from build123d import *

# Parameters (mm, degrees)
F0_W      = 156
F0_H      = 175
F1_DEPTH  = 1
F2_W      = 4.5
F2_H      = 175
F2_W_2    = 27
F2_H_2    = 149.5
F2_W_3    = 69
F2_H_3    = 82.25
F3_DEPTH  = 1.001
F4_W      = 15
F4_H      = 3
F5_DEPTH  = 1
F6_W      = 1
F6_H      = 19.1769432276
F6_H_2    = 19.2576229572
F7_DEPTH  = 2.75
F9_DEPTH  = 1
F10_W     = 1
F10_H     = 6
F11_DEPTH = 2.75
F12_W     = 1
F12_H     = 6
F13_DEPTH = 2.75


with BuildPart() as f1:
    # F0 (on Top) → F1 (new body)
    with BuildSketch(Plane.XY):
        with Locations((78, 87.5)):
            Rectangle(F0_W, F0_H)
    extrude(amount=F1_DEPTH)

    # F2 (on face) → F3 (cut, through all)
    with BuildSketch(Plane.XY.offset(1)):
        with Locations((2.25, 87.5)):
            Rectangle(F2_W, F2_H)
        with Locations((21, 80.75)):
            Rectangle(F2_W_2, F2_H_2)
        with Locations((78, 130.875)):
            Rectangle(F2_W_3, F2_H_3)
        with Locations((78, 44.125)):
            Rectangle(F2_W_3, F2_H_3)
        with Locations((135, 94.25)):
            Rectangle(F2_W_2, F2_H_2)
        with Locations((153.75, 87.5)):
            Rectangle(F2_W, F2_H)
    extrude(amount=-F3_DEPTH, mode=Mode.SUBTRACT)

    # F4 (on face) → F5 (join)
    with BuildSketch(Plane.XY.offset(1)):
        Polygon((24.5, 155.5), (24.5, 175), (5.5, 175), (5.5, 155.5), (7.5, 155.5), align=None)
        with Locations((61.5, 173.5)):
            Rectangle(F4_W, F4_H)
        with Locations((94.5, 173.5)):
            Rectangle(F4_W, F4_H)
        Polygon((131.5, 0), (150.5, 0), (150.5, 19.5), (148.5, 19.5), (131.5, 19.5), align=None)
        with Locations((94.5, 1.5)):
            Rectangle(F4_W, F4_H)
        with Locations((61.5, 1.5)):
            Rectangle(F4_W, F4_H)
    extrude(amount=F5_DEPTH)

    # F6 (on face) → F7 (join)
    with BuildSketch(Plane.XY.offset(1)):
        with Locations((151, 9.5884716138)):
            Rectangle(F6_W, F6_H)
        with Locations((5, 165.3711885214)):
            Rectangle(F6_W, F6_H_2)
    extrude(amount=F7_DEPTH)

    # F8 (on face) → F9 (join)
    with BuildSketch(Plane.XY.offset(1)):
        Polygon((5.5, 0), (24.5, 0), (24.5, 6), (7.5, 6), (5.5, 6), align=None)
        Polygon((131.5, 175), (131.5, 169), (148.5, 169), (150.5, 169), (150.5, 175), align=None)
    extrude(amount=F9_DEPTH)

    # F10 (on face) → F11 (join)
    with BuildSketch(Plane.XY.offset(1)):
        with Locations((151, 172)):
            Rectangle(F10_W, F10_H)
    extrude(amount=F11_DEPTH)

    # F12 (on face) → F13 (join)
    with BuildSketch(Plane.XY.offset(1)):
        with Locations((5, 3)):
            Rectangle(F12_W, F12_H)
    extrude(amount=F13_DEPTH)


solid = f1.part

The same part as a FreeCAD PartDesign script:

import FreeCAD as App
import Part
import Sketcher


def add_polygon(sketch, points):
    """Adds a closed chain of lines whose ends are joined by coincident constraints."""
    first, n = sketch.GeometryCount, len(points)
    for a, b in zip(points, points[1:] + points[:1]):
        sketch.addGeometry(Part.LineSegment(App.Vector(*a, 0), App.Vector(*b, 0)), False)
    for i in range(n):
        sketch.addConstraint(Sketcher.Constraint("Coincident", first + i, 2, first + (i + 1) % n, 1))

doc = App.newDocument("Part")
body = doc.addObject("PartDesign::Body", "Body")

# Sketch on XY plane
sketch1 = body.newObject("Sketcher::SketchObject", "Sketch")
sketch1.AttachmentSupport = (doc.getObject("XY_Plane"), [""])
sketch1.MapMode = "FlatFace"
add_polygon(sketch1, [(0, 175), (0, 0), (156, 0), (156, 175)])  # lines 0-3
sketch1.addConstraint([
    Sketcher.Constraint("Vertical", 0),
    Sketcher.Constraint("Horizontal", 1),
    Sketcher.Constraint("Vertical", 2),
    Sketcher.Constraint("Horizontal", 3),
    Sketcher.Constraint("Coincident", 0, 2, -1, 1),
    Sketcher.Constraint("DistanceX", 1, 1, 1, 2, 156.0),
    Sketcher.Constraint("DistanceY", 0, 2, 0, 1, 175.0),
])
pad1 = body.newObject("PartDesign::Pad", "Pad")
pad1.Profile = sketch1
pad1.Length = 1

# Sketch on XY plane
sketch2 = body.newObject("Sketcher::SketchObject", "Sketch001")
sketch2.AttachmentSupport = (doc.getObject("XY_Plane"), [""])
sketch2.MapMode = "FlatFace"
sketch2.AttachmentOffset = App.Placement(App.Vector(0, 0, 1), App.Rotation())
add_polygon(sketch2, [(0, 175), (0, 0), (4.5, 0), (4.5, 175)])  # lines 0-3
add_polygon(sketch2, [(7.5, 155.5), (7.5, 6), (34.5, 6), (34.5, 155.5)])  # lines 4-7
add_polygon(sketch2, [(43.5, 172), (43.5, 89.8), (112.5, 89.8), (112.5, 172)])  # lines 8-11
add_polygon(sketch2, [(43.5, 85.2), (43.5, 3), (112.5, 3), (112.5, 85.2)])  # lines 12-15
add_polygon(sketch2, [(121.5, 169), (121.5, 19.5), (148.5, 19.5), (148.5, 169)])  # lines 16-19
add_polygon(sketch2, [(151.5, 175), (151.5, 0), (156, 0), (156, 175)])  # lines 20-23
sketch2.addConstraint([
    Sketcher.Constraint("Vertical", 0),
    Sketcher.Constraint("Horizontal", 1),
    Sketcher.Constraint("Vertical", 2),
    Sketcher.Constraint("Horizontal", 3),
    Sketcher.Constraint("Vertical", 4),
    Sketcher.Constraint("Horizontal", 5),
    Sketcher.Constraint("Vertical", 6),
    Sketcher.Constraint("Horizontal", 7),
    Sketcher.Constraint("Vertical", 8),
    Sketcher.Constraint("Horizontal", 9),
    Sketcher.Constraint("Vertical", 10),
    Sketcher.Constraint("Horizontal", 11),
    Sketcher.Constraint("Vertical", 12),
    Sketcher.Constraint("Horizontal", 13),
    Sketcher.Constraint("Vertical", 14),
    Sketcher.Constraint("Horizontal", 15),
    Sketcher.Constraint("Vertical", 16),
    Sketcher.Constraint("Horizontal", 17),
    Sketcher.Constraint("Vertical", 18),
    Sketcher.Constraint("Horizontal", 19),
    Sketcher.Constraint("Vertical", 20),
    Sketcher.Constraint("Horizontal", 21),
    Sketcher.Constraint("Vertical", 22),
    Sketcher.Constraint("Horizontal", 23),
    Sketcher.Constraint("Coincident", 0, 2, -1, 1),
    Sketcher.Constraint("PointOnObject", 20, 2, -1),
    Sketcher.Constraint("Horizontal", 3, 2, 22, 2),
    Sketcher.Constraint("Vertical", 11, 2, 12, 2),
    Sketcher.Constraint("Vertical", 10, 2, 13, 2),
    Sketcher.Constraint("Equal", 7, 17),
    Sketcher.Constraint("Equal", 3, 21),
    Sketcher.Constraint("Equal", 10, 12),
    Sketcher.Constraint("Equal", 6, 16),
    Sketcher.Constraint("DistanceX", 5, 1, 5, 2, 27.0),
    Sketcher.Constraint("DistanceX", 9, 1, 9, 2, 69.0),
    Sketcher.Constraint("DistanceY", 0, 2, 0, 1, 175.0),
    Sketcher.Constraint("DistanceX", 1, 1, 1, 2, 4.5),
    Sketcher.Constraint("DistanceY", 4, 2, 4, 1, 149.5),
    Sketcher.Constraint("DistanceY", -1, 1, 4, 2, 6.0),
    Sketcher.Constraint("DistanceY", -1, 1, 10, 2, 172.0),
    Sketcher.Constraint("DistanceY", -1, 1, 12, 2, 3.0),
    Sketcher.Constraint("DistanceY", -1, 1, 18, 2, 169.0),
    Sketcher.Constraint("DistanceX", -1, 1, 21, 2, 156.0),
    Sketcher.Constraint("DistanceX", 1, 2, 4, 2, 3.0),
    Sketcher.Constraint("DistanceX", 6, 2, 8, 2, 9.0),
    Sketcher.Constraint("DistanceX", 13, 2, 16, 2, 9.0),
    Sketcher.Constraint("DistanceY", 8, 2, 8, 1, 82.25),
])
pocket1 = body.newObject("PartDesign::Pocket", "Pocket")
pocket1.Profile = sketch2
pocket1.Type = "ThroughAll"

# Sketch on XY plane
sketch3 = body.newObject("Sketcher::SketchObject", "Sketch002")
sketch3.AttachmentSupport = (doc.getObject("XY_Plane"), [""])
sketch3.MapMode = "FlatFace"
sketch3.AttachmentOffset = App.Placement(App.Vector(0, 0, 1), App.Rotation())
add_polygon(sketch3, [(24.5, 155.5), (24.5, 175), (5.5, 175), (5.5, 155.5)])  # lines 0-3
add_polygon(sketch3, [(54, 175), (54, 172), (69, 172), (69, 175)])  # lines 4-7
add_polygon(sketch3, [(87, 175), (87, 172), (102, 172), (102, 175)])  # lines 8-11
add_polygon(sketch3, [(131.5, 0), (150.5, 0), (150.5, 19.5), (131.5, 19.5)])  # lines 12-15
add_polygon(sketch3, [(87, 3), (87, 0), (102, 0), (102, 3)])  # lines 16-19
add_polygon(sketch3, [(54, 3), (54, 0), (69, 0), (69, 3)])  # lines 20-23
sketch3.addConstraint([
    Sketcher.Constraint("Vertical", 0),
    Sketcher.Constraint("Horizontal", 1),
    Sketcher.Constraint("Vertical", 2),
    Sketcher.Constraint("Horizontal", 3),
    Sketcher.Constraint("Vertical", 4),
    Sketcher.Constraint("Horizontal", 5),
    Sketcher.Constraint("Vertical", 6),
    Sketcher.Constraint("Horizontal", 7),
    Sketcher.Constraint("Vertical", 8),
    Sketcher.Constraint("Horizontal", 9),
    Sketcher.Constraint("Vertical", 10),
    Sketcher.Constraint("Horizontal", 11),
    Sketcher.Constraint("Horizontal", 12),
    Sketcher.Constraint("Vertical", 13),
    Sketcher.Constraint("Horizontal", 14),
    Sketcher.Constraint("Vertical", 15),
    Sketcher.Constraint("Vertical", 16),
    Sketcher.Constraint("Horizontal", 17),
    Sketcher.Constraint("Vertical", 18),
    Sketcher.Constraint("Horizontal", 19),
    Sketcher.Constraint("Vertical", 20),
    Sketcher.Constraint("Horizontal", 21),
    Sketcher.Constraint("Vertical", 22),
    Sketcher.Constraint("Horizontal", 23),
    Sketcher.Constraint("PointOnObject", 12, 2, -1),
    Sketcher.Constraint("PointOnObject", 16, 2, -1),
    Sketcher.Constraint("PointOnObject", 20, 2, -1),
    Sketcher.Constraint("Horizontal", 1, 2, 6, 2),
    Sketcher.Constraint("Horizontal", 5, 2, 8, 2),
    Sketcher.Constraint("Horizontal", 7, 2, 10, 2),
    Sketcher.Constraint("Horizontal", 19, 2, 22, 2),
    Sketcher.Constraint("Vertical", 11, 2, 16, 2),
    Sketcher.Constraint("Vertical", 10, 2, 17, 2),
    Sketcher.Constraint("Vertical", 7, 2, 20, 2),
    Sketcher.Constraint("Vertical", 6, 2, 21, 2),
    Sketcher.Constraint("Equal", 7, 9),
    Sketcher.Constraint("Equal", 3, 12),
    Sketcher.Constraint("Equal", 2, 13),
    Sketcher.Constraint("Equal", 10, 16),
    Sketcher.Constraint("DistanceX", 1, 2, 1, 1, 19.0),
    Sketcher.Constraint("DistanceX", 5, 1, 5, 2, 15.0),
    Sketcher.Constraint("DistanceY", 4, 2, 4, 1, 3.0),
    Sketcher.Constraint("DistanceY", 0, 1, 0, 2, 19.5),
    Sketcher.Constraint("DistanceY", -1, 1, 0, 2, 175.0),
    Sketcher.Constraint("DistanceX", -1, 1, 4, 2, 54.0),
    Sketcher.Constraint("DistanceX", -1, 1, 8, 2, 87.0),
    Sketcher.Constraint("DistanceX", -1, 1, 0, 2, 24.5),
    Sketcher.Constraint("DistanceX", -1, 1, 12, 2, 150.5),
])
pad2 = body.newObject("PartDesign::Pad", "Pad001")
pad2.Profile = sketch3
pad2.Length = 1

# Sketch on XY plane
sketch4 = body.newObject("Sketcher::SketchObject", "Sketch003")
sketch4.AttachmentSupport = (doc.getObject("XY_Plane"), [""])
sketch4.MapMode = "FlatFace"
sketch4.AttachmentOffset = App.Placement(App.Vector(0, 0, 1), App.Rotation())
add_polygon(sketch4, [(150.5, 19.2), (150.5, 0), (151.5, 0), (151.5, 19.2)])  # lines 0-3
add_polygon(sketch4, [(4.5, 175), (4.5, 155.7), (5.5, 155.7), (5.5, 175)])  # lines 4-7
sketch4.addConstraint([
    Sketcher.Constraint("Vertical", 0),
    Sketcher.Constraint("Horizontal", 1),
    Sketcher.Constraint("Vertical", 2),
    Sketcher.Constraint("Horizontal", 3),
    Sketcher.Constraint("Vertical", 4),
    Sketcher.Constraint("Horizontal", 5),
    Sketcher.Constraint("Vertical", 6),
    Sketcher.Constraint("Horizontal", 7),
    Sketcher.Constraint("PointOnObject", 0, 2, -1),
    Sketcher.Constraint("Equal", 3, 5),
    Sketcher.Constraint("DistanceX", 1, 1, 1, 2, 1.0),
    Sketcher.Constraint("DistanceY", -1, 1, 6, 2, 175.0),
    Sketcher.Constraint("DistanceX", 4, 2, 3, 2, 146.0),
    Sketcher.Constraint("DistanceX", -1, 1, 0, 2, 150.5),
    Sketcher.Constraint("DistanceY", 0, 2, 0, 1, 19.176943),
    Sketcher.Constraint("DistanceY", 4, 2, 4, 1, 19.257623),
])
pad3 = body.newObject("PartDesign::Pad", "Pad002")
pad3.Profile = sketch4
pad3.Length = 2.75

# Sketch on XY plane
sketch5 = body.newObject("Sketcher::SketchObject", "Sketch004")
sketch5.AttachmentSupport = (doc.getObject("XY_Plane"), [""])
sketch5.MapMode = "FlatFace"
sketch5.AttachmentOffset = App.Placement(App.Vector(0, 0, 1), App.Rotation())
add_polygon(sketch5, [(6, 0), (24, 0), (24, 6), (6, 6)])  # lines 0-3
add_polygon(sketch5, [(132, 175), (132, 169), (150, 169), (150, 175)])  # lines 4-7
sketch5.addConstraint([
    Sketcher.Constraint("Horizontal", 0),
    Sketcher.Constraint("Vertical", 1),
    Sketcher.Constraint("Horizontal", 2),
    Sketcher.Constraint("Vertical", 3),
    Sketcher.Constraint("Vertical", 4),
    Sketcher.Constraint("Horizontal", 5),
    Sketcher.Constraint("Vertical", 6),
    Sketcher.Constraint("Horizontal", 7),
    Sketcher.Constraint("PointOnObject", 0, 2, -1),
    Sketcher.Constraint("Equal", 2, 5),
    Sketcher.Constraint("Equal", 3, 4),
    Sketcher.Constraint("DistanceX", 0, 1, 0, 2, 19.0),
    Sketcher.Constraint("DistanceY", 1, 1, 1, 2, 6.0),
    Sketcher.Constraint("DistanceY", -1, 1, 4, 2, 169.0),
    Sketcher.Constraint("DistanceX", 1, 2, 4, 2, 107.0),
    Sketcher.Constraint("DistanceX", -1, 1, 0, 2, 24.5),
])
pad4 = body.newObject("PartDesign::Pad", "Pad003")
pad4.Profile = sketch5
pad4.Length = 1

# Sketch on XY plane
sketch6 = body.newObject("Sketcher::SketchObject", "Sketch005")
sketch6.AttachmentSupport = (doc.getObject("XY_Plane"), [""])
sketch6.MapMode = "FlatFace"
sketch6.AttachmentOffset = App.Placement(App.Vector(0, 0, 1), App.Rotation())
add_polygon(sketch6, [(150.5, 175), (150.5, 169), (151.5, 169), (151.5, 175)])  # lines 0-3
sketch6.addConstraint([
    Sketcher.Constraint("Vertical", 0),
    Sketcher.Constraint("Horizontal", 1),
    Sketcher.Constraint("Vertical", 2),
    Sketcher.Constraint("Horizontal", 3),
    Sketcher.Constraint("DistanceX", 1, 1, 1, 2, 1.0),
    Sketcher.Constraint("DistanceY", 0, 2, 0, 1, 6.0),
    Sketcher.Constraint("DistanceY", -1, 1, 0, 2, 169.0),
    Sketcher.Constraint("DistanceX", -1, 1, 0, 2, 150.5),
])
pad5 = body.newObject("PartDesign::Pad", "Pad004")
pad5.Profile = sketch6
pad5.Length = 2.75

# Sketch on XY plane
sketch7 = body.newObject("Sketcher::SketchObject", "Sketch006")
sketch7.AttachmentSupport = (doc.getObject("XY_Plane"), [""])
sketch7.MapMode = "FlatFace"
sketch7.AttachmentOffset = App.Placement(App.Vector(0, 0, 1), App.Rotation())
add_polygon(sketch7, [(4.5, 6), (4.5, 0), (5.5, 0), (5.5, 6)])  # lines 0-3
sketch7.addConstraint([
    Sketcher.Constraint("Vertical", 0),
    Sketcher.Constraint("Horizontal", 1),
    Sketcher.Constraint("Vertical", 2),
    Sketcher.Constraint("Horizontal", 3),
    Sketcher.Constraint("PointOnObject", 0, 2, -1),
    Sketcher.Constraint("DistanceX", 1, 1, 1, 2, 1.0),
    Sketcher.Constraint("DistanceY", 0, 2, 0, 1, 6.0),
    Sketcher.Constraint("DistanceX", -1, 1, 0, 2, 4.5),
])
pad6 = body.newObject("PartDesign::Pad", "Pad005")
pad6.Profile = sketch7
pad6.Length = 2.75

doc.recompute()
